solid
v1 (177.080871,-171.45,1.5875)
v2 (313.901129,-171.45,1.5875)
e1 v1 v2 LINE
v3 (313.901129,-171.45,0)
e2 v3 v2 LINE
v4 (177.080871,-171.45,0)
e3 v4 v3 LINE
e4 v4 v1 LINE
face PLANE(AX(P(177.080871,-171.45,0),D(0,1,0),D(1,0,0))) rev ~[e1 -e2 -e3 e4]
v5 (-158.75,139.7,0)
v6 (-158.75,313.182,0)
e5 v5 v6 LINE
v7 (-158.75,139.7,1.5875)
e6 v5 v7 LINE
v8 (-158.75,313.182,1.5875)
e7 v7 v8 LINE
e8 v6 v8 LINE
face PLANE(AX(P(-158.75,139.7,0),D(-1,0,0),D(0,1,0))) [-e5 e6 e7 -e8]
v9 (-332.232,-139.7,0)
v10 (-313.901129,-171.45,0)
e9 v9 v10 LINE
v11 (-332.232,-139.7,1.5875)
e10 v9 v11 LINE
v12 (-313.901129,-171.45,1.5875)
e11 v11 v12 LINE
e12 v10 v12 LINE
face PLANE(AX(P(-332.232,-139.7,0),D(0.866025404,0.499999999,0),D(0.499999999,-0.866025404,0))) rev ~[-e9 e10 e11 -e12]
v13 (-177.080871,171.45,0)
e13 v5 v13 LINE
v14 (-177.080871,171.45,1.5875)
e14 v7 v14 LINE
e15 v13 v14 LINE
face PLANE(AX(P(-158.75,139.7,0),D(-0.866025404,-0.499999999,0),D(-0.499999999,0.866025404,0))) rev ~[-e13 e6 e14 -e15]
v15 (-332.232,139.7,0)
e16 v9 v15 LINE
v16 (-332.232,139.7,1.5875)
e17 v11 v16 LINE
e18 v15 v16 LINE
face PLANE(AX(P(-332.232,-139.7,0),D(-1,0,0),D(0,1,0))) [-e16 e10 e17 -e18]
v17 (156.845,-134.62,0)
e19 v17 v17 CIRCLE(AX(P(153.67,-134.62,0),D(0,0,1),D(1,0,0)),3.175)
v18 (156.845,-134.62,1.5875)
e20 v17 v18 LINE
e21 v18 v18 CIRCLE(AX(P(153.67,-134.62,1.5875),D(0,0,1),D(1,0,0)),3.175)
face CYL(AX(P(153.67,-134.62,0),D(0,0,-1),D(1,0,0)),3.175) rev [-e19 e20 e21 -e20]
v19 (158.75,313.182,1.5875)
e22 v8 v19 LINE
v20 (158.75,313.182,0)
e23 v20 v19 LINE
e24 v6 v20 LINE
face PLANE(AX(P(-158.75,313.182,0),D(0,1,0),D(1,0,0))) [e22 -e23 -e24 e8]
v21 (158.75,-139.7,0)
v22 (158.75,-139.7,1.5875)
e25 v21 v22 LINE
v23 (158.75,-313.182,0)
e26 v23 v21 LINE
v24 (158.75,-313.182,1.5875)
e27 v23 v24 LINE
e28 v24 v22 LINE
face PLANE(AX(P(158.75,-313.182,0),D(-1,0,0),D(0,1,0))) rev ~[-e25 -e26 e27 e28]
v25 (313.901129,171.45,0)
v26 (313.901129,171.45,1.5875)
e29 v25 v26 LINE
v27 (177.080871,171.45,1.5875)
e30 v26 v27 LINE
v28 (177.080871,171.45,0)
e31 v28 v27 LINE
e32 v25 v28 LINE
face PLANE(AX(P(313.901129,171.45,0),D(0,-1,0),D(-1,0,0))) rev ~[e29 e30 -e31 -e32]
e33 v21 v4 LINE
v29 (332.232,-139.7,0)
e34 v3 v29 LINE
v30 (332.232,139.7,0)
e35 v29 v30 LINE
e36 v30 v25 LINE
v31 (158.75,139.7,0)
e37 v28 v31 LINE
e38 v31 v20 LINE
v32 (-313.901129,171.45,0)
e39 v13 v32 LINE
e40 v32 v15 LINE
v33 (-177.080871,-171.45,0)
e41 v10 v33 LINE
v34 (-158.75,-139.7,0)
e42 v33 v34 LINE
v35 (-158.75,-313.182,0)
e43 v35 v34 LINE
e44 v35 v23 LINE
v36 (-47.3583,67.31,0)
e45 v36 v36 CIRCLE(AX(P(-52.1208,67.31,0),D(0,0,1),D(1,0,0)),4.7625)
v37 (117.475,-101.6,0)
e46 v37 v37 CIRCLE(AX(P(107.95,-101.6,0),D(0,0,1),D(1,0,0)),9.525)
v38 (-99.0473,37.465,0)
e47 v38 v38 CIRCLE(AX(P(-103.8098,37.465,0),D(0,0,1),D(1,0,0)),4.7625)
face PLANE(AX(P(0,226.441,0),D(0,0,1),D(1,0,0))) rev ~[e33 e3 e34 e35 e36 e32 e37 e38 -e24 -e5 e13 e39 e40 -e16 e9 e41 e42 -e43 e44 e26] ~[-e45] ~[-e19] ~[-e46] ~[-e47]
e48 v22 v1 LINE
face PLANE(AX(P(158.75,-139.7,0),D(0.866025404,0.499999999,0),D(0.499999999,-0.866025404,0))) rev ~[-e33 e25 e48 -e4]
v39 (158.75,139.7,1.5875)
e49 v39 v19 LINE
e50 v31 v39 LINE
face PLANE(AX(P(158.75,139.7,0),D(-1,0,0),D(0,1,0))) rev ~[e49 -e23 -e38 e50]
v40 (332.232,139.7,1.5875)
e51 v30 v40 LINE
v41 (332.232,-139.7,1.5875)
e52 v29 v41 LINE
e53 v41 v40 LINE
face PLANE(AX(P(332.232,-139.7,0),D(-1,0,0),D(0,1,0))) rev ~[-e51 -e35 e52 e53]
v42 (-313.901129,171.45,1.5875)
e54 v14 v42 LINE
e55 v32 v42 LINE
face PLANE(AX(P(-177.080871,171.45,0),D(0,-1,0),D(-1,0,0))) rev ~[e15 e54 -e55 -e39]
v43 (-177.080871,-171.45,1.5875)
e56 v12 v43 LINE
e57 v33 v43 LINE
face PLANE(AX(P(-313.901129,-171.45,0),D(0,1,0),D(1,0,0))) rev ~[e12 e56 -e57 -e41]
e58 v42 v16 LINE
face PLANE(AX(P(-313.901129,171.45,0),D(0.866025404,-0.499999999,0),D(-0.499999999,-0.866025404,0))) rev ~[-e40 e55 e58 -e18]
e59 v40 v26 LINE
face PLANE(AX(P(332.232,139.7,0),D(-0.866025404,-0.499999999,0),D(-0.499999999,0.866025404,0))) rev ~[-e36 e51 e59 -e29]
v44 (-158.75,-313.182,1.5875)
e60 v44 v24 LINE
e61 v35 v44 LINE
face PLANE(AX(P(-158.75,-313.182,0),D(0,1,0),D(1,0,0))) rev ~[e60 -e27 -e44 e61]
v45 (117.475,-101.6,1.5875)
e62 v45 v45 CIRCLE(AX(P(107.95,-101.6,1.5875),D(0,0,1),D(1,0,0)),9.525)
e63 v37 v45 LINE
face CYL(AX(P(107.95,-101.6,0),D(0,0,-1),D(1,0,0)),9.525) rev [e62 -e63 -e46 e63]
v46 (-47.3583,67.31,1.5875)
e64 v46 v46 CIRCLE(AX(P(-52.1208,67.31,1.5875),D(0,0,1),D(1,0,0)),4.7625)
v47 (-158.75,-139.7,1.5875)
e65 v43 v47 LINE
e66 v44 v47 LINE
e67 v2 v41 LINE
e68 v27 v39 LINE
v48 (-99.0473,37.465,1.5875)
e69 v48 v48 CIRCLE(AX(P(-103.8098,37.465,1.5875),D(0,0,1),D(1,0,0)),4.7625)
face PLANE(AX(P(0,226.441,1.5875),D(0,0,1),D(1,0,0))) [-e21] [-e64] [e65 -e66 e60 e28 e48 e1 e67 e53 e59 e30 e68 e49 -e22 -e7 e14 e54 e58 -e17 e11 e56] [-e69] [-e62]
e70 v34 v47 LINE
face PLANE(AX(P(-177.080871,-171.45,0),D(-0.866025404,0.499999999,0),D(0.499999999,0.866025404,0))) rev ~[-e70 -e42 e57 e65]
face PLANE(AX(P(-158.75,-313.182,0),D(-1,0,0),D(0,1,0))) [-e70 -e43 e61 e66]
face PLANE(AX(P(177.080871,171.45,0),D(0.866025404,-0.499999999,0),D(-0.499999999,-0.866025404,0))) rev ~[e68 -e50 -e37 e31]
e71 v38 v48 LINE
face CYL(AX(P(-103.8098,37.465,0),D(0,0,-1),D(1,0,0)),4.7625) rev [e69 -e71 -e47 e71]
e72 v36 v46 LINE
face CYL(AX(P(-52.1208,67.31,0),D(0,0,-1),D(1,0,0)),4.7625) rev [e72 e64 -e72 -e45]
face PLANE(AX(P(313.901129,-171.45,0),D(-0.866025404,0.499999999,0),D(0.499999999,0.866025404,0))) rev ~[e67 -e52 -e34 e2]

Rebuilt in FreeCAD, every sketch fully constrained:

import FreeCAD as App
import Part
import Sketcher

V = App.Vector
Q = App.Units.Quantity

doc = App.newDocument("Part")
body = doc.addObject("PartDesign::Body", "Body")

sketch1 = body.newObject("Sketcher::SketchObject", "Sketch")
sketch1.AttachmentSupport = (doc.getObject("XY_Plane"), [""])
sketch1.MapMode = "FlatFace"
sketch1.addGeometry(Part.LineSegment(V(-158.8, 313.2, 0), V(-158.8, 139.7, 0)), False)
sketch1.addGeometry(Part.LineSegment(V(-158.8, 139.7, 0), V(-177.1, 171.4, 0)), False)
sketch1.addGeometry(Part.LineSegment(V(-177.1, 171.4, 0), V(-313.9, 171.4, 0)), False)
sketch1.addGeometry(Part.LineSegment(V(-313.9, 171.4, 0), V(-332.2, 139.7, 0)), False)
sketch1.addGeometry(Part.LineSegment(V(-332.2, 139.7, 0), V(-332.2, -139.7, 0)), False)
sketch1.addGeometry(Part.LineSegment(V(-332.2, -139.7, 0), V(-313.9, -171.4, 0)), False)
sketch1.addGeometry(Part.LineSegment(V(-313.9, -171.4, 0), V(-177.1, -171.4, 0)), False)
sketch1.addGeometry(Part.LineSegment(V(-177.1, -171.4, 0), V(-158.8, -139.7, 0)), False)
sketch1.addGeometry(Part.LineSegment(V(-158.8, -139.7, 0), V(-158.8, -313.2, 0)), False)
sketch1.addGeometry(Part.LineSegment(V(-158.8, -313.2, 0), V(158.8, -313.2, 0)), False)
sketch1.addGeometry(Part.LineSegment(V(158.8, -313.2, 0), V(158.8, -139.7, 0)), False)
sketch1.addGeometry(Part.LineSegment(V(158.8, -139.7, 0), V(177.1, -171.4, 0)), False)
sketch1.addGeometry(Part.LineSegment(V(177.1, -171.4, 0), V(313.9, -171.4, 0)), False)
sketch1.addGeometry(Part.LineSegment(V(313.9, -171.4, 0), V(332.2, -139.7, 0)), False)
sketch1.addGeometry(Part.LineSegment(V(332.2, -139.7, 0), V(332.2, 139.7, 0)), False)
sketch1.addGeometry(Part.LineSegment(V(332.2, 139.7, 0), V(313.9, 171.4, 0)), False)
sketch1.addGeometry(Part.LineSegment(V(313.9, 171.4, 0), V(177.1, 171.4, 0)), False)
sketch1.addGeometry(Part.LineSegment(V(177.1, 171.4, 0), V(158.8, 139.7, 0)), False)
sketch1.addGeometry(Part.LineSegment(V(158.8, 139.7, 0), V(158.8, 313.2, 0)), False)
sketch1.addGeometry(Part.LineSegment(V(158.8, 313.2, 0), V(-158.8, 313.2, 0)), False)
sketch1.addGeometry(Part.Circle(V(153.7, -134.6, 0), V(0, 0, 1), 3.2), False)
sketch1.addGeometry(Part.Circle(V(108, -101.6, 0), V(0, 0, 1), 9.5), False)
sketch1.addGeometry(Part.Circle(V(-103.8, 37.5, 0), V(0, 0, 1), 4.8), False)
sketch1.addGeometry(Part.Circle(V(-52.1, 67.3, 0), V(0, 0, 1), 4.8), False)
sketch1.addConstraint(Sketcher.Constraint("Coincident", 0, 2, 1, 1))
sketch1.addConstraint(Sketcher.Constraint("Coincident", 1, 2, 2, 1))
sketch1.addConstraint(Sketcher.Constraint("Coincident", 2, 2, 3, 1))
sketch1.addConstraint(Sketcher.Constraint("Coincident", 3, 2, 4, 1))
sketch1.addConstraint(Sketcher.Constraint("Coincident", 4, 2, 5, 1))
sketch1.addConstraint(Sketcher.Constraint("Coincident", 5, 2, 6, 1))
sketch1.addConstraint(Sketcher.Constraint("Coincident", 6, 2, 7, 1))
sketch1.addConstraint(Sketcher.Constraint("Coincident", 7, 2, 8, 1))
sketch1.addConstraint(Sketcher.Constraint("Coincident", 8, 2, 9, 1))
sketch1.addConstraint(Sketcher.Constraint("Coincident", 9, 2, 10, 1))
sketch1.addConstraint(Sketcher.Constraint("Coincident", 10, 2, 11, 1))
sketch1.addConstraint(Sketcher.Constraint("Coincident", 11, 2, 12, 1))
sketch1.addConstraint(Sketcher.Constraint("Coincident", 12, 2, 13, 1))
sketch1.addConstraint(Sketcher.Constraint("Coincident", 13, 2, 14, 1))
sketch1.addConstraint(Sketcher.Constraint("Coincident", 14, 2, 15, 1))
sketch1.addConstraint(Sketcher.Constraint("Coincident", 15, 2, 16, 1))
sketch1.addConstraint(Sketcher.Constraint("Coincident", 16, 2, 17, 1))
sketch1.addConstraint(Sketcher.Constraint("Coincident", 17, 2, 18, 1))
sketch1.addConstraint(Sketcher.Constraint("Coincident", 18, 2, 19, 1))
sketch1.addConstraint(Sketcher.Constraint("Coincident", 19, 2, 0, 1))
sketch1.addConstraint(Sketcher.Constraint("Vertical", 0))
sketch1.addConstraint(Sketcher.Constraint("Horizontal", 2))
sketch1.addConstraint(Sketcher.Constraint("Vertical", 4))
sketch1.addConstraint(Sketcher.Constraint("Horizontal", 6))
sketch1.addConstraint(Sketcher.Constraint("Vertical", 8))
sketch1.addConstraint(Sketcher.Constraint("Horizontal", 9))
sketch1.addConstraint(Sketcher.Constraint("Vertical", 10))
sketch1.addConstraint(Sketcher.Constraint("Horizontal", 12))
sketch1.addConstraint(Sketcher.Constraint("Vertical", 14))
sketch1.addConstraint(Sketcher.Constraint("Horizontal", 16))
sketch1.addConstraint(Sketcher.Constraint("Vertical", 18))
sketch1.addConstraint(Sketcher.Constraint("Horizontal", 19))
sketch1.addConstraint(Sketcher.Constraint("Equal", 22, 23))
sketch1.addConstraint(Sketcher.Constraint("Symmetric", 0, 2, 10, 2, -1, 1))
sketch1.addConstraint(Sketcher.Constraint("Symmetric", 1, 2, 11, 2, -1, 1))
sketch1.addConstraint(Sketcher.Constraint("Symmetric", 3, 2, 13, 2, -1, 1))
sketch1.addConstraint(Sketcher.Constraint("Symmetric", 5, 2, 15, 2, -1, 1))
sketch1.addConstraint(Sketcher.Constraint("Symmetric", 7, 2, 17, 2, -1, 1))
sketch1.addConstraint(Sketcher.Constraint("Symmetric", 7, 2, 10, 2, -2))
sketch1.addConstraint(Sketcher.Constraint("Symmetric", 6, 2, 11, 2, -2))
sketch1.addConstraint(Sketcher.Constraint("Parallel", 1, 5))
sketch1.addConstraint(Sketcher.Constraint("Parallel", 3, 7))
sketch1.addConstraint(Sketcher.Constraint("Parallel", 7, 13))
sketch1.addConstraint(Sketcher.Constraint("Parallel", 11, 15))
sketch1.addConstraint(Sketcher.Constraint("Parallel", 13, 17))
sketch1.addConstraint(Sketcher.Constraint("Horizontal", 0, 2, 3, 2))
sketch1.addConstraint(Sketcher.Constraint("Horizontal", 4, 2, 7, 2))
sketch1.addConstraint(Sketcher.Constraint("Equal", 0, 8))
sketch1.addConstraint(Sketcher.Constraint("Diameter", 20, Q("0.25 in")))
sketch1.addConstraint(Sketcher.Constraint("Diameter", 21, Q("0.75 in")))
sketch1.addConstraint(Sketcher.Constraint("DistanceY", 4, 2, 4, 1, Q("11 in")))
sketch1.addConstraint(Sketcher.Constraint("Diameter", 22, Q("0.375 in")))
sketch1.addConstraint(Sketcher.Constraint("DistanceX", 9, 1, 9, 2, Q("12.5 in")))
sketch1.addConstraint(Sketcher.Constraint("DistanceY", 21, 3, -1, 1, Q("4 in")))
sketch1.addConstraint(Sketcher.Constraint("Angle", 1, Q("120 deg")))
sketch1.addConstraint(Sketcher.Constraint("DistanceX", 21, 3, 9, 2, Q("2 in")))
sketch1.addConstraint(Sketcher.Constraint("DistanceY", 0, 2, 0, 1, Q("6.83 in")))
sketch1.addConstraint(Sketcher.Constraint("DistanceY", 20, 3, -1, 1, Q("5.3 in")))
sketch1.addConstraint(Sketcher.Constraint("DistanceX", 21, 3, 20, 3, Q("1.8 in")))
sketch1.addConstraint(Sketcher.Constraint("DistanceY", 23, 3, 1, 2, Q("4.1 in")))
sketch1.addConstraint(Sketcher.Constraint("DistanceY", 5, 2, 2, 2, Q("13.5 in")))
sketch1.addConstraint(Sketcher.Constraint("DistanceX", 3, 2, -1, 1, Q("13.08 in")))
sketch1.addConstraint(Sketcher.Constraint("DistanceX", 22, 3, -1, 1, Q("4.087 in")))
sketch1.addConstraint(Sketcher.Constraint("DistanceY", -1, 1, 22, 3, Q("1.475 in")))
sketch1.addConstraint(Sketcher.Constraint("DistanceX", 23, 3, -1, 1, Q("2.052 in")))
pad1 = body.newObject("PartDesign::Pad", "Pad")
pad1.Profile = sketch1
pad1.Length = Q("0.0625 in")

doc.recompute()
